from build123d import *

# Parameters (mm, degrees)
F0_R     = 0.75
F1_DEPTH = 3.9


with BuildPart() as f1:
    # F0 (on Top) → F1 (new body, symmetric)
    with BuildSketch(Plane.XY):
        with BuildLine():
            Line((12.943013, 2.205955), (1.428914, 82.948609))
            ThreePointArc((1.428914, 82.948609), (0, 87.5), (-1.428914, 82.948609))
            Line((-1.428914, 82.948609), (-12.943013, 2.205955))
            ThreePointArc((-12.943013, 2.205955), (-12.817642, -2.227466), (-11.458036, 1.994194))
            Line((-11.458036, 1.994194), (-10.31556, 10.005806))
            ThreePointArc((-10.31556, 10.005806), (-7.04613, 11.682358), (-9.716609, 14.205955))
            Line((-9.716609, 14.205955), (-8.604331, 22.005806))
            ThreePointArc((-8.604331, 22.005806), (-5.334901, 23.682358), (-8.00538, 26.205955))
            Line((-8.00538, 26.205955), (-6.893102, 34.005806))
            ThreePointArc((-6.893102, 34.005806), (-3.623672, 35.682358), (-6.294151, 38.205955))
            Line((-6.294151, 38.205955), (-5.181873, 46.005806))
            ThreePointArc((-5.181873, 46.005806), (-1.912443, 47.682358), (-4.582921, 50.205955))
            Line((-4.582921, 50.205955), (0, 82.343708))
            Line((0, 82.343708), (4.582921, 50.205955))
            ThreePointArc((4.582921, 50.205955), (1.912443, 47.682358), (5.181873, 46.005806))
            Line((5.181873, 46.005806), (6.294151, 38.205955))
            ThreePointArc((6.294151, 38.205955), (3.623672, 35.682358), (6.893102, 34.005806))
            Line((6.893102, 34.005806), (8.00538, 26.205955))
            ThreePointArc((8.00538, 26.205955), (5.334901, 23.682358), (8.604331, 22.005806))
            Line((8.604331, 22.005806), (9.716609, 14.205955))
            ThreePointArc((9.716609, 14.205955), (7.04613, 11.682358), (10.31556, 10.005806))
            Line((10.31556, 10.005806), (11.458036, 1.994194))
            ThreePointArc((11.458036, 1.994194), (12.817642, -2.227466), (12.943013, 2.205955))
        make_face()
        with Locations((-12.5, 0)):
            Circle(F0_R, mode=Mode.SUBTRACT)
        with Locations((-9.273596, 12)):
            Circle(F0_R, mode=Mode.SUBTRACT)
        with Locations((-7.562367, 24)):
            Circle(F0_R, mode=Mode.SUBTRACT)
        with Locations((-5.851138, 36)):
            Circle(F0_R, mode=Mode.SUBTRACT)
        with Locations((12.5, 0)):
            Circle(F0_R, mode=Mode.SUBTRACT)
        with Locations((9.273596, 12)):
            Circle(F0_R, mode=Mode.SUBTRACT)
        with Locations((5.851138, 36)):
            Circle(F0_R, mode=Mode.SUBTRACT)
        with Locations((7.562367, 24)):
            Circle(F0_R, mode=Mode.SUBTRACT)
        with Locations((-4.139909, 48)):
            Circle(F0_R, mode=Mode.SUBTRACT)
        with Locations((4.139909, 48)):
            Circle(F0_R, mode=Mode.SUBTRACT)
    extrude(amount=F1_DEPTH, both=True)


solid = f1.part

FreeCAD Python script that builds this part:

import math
import FreeCAD as App
import Part
import Sketcher
Q = App.Units.Quantity

doc = App.newDocument("Part")
body = doc.addObject("PartDesign::Body", "Body")

sketch1 = doc.addObject("Sketcher::SketchObject", "Sketch")
body.addObject(sketch1)
sketch1.AttachmentSupport = (doc.XY_Plane, [""])
sketch1.MapMode = "FlatFace"
sketch1.addGeometry(Part.LineSegment(App.Vector(12.9, 2.2, 0), App.Vector(1.4, 82.9, 0)), False)
sketch1.addGeometry(Part.ArcOfCircle(Part.Circle(App.Vector(0, 85, 0), App.Vector(0, 0, 1), 2.5), math.radians(-55), math.radians(235)), False)
sketch1.addGeometry(Part.LineSegment(App.Vector(-1.4, 82.9, 0), App.Vector(-12.9, 2.2, 0)), False)
sketch1.addGeometry(Part.ArcOfCircle(Part.Circle(App.Vector(-12.5, 0, 0), App.Vector(0, 0, 1), 2.2), math.radians(101), math.radians(422)), False)
sketch1.addGeometry(Part.LineSegment(App.Vector(-11.5, 2, 0), App.Vector(-10.3, 10, 0)), False)
sketch1.addGeometry(Part.ArcOfCircle(Part.Circle(App.Vector(-9.3, 12, 0), App.Vector(0, 0, 1), 2.2), math.radians(-118), math.radians(101)), False)
sketch1.addGeometry(Part.LineSegment(App.Vector(-9.7, 14.2, 0), App.Vector(-8.6, 22, 0)), False)
sketch1.addGeometry(Part.ArcOfCircle(Part.Circle(App.Vector(-7.6, 24, 0), App.Vector(0, 0, 1), 2.2), math.radians(-118), math.radians(101)), False)
sketch1.addGeometry(Part.LineSegment(App.Vector(-8, 26.2, 0), App.Vector(-6.9, 34, 0)), False)
sketch1.addGeometry(Part.ArcOfCircle(Part.Circle(App.Vector(-5.9, 36, 0), App.Vector(0, 0, 1), 2.2), math.radians(-118), math.radians(101)), False)
sketch1.addGeometry(Part.LineSegment(App.Vector(-6.3, 38.2, 0), App.Vector(-5.2, 46, 0)), False)
sketch1.addGeometry(Part.ArcOfCircle(Part.Circle(App.Vector(-4.1, 48, 0), App.Vector(0, 0, 1), 2.2), math.radians(-118), math.radians(101)), False)
sketch1.addGeometry(Part.LineSegment(App.Vector(-4.6, 50.2, 0), App.Vector(0, 82.3, 0)), False)
sketch1.addGeometry(Part.LineSegment(App.Vector(0, 82.3, 0), App.Vector(4.6, 50.2, 0)), False)
sketch1.addGeometry(Part.ArcOfCircle(Part.Circle(App.Vector(4.1, 48, 0), App.Vector(0, 0, 1), 2.2), math.radians(79), math.radians(298)), False)
sketch1.addGeometry(Part.LineSegment(App.Vector(5.2, 46, 0), App.Vector(6.3, 38.2, 0)), False)
sketch1.addGeometry(Part.ArcOfCircle(Part.Circle(App.Vector(5.9, 36, 0), App.Vector(0, 0, 1), 2.2), math.radians(79), math.radians(298)), False)
sketch1.addGeometry(Part.LineSegment(App.Vector(6.9, 34, 0), App.Vector(8, 26.2, 0)), False)
sketch1.addGeometry(Part.ArcOfCircle(Part.Circle(App.Vector(7.6, 24, 0), App.Vector(0, 0, 1), 2.2), math.radians(79), math.radians(298)), False)
sketch1.addGeometry(Part.LineSegment(App.Vector(8.6, 22, 0), App.Vector(9.7, 14.2, 0)), False)
sketch1.addGeometry(Part.ArcOfCircle(Part.Circle(App.Vector(9.3, 12, 0), App.Vector(0, 0, 1), 2.2), math.radians(79), math.radians(298)), False)
sketch1.addGeometry(Part.LineSegment(App.Vector(10.3, 10, 0), App.Vector(11.5, 2, 0)), False)
sketch1.addGeometry(Part.ArcOfCircle(Part.Circle(App.Vector(12.5, 0, 0), App.Vector(0, 0, 1), 2.2), math.radians(118), math.radians(439)), False)
sketch1.addGeometry(Part.Circle(App.Vector(-12.5, 0, 0), App.Vector(0, 0, 1), 0.8), False)
sketch1.addGeometry(Part.Circle(App.Vector(-9.3, 12, 0), App.Vector(0, 0, 1), 0.8), False)
sketch1.addGeometry(Part.Circle(App.Vector(12.5, 0, 0), App.Vector(0, 0, 1), 0.8), False)
sketch1.addGeometry(Part.Circle(App.Vector(9.3, 12, 0), App.Vector(0, 0, 1), 0.8), False)
sketch1.addGeometry(Part.Circle(App.Vector(-7.6, 24, 0), App.Vector(0, 0, 1), 0.8), False)
sketch1.addGeometry(Part.Circle(App.Vector(-5.9, 36, 0), App.Vector(0, 0, 1), 0.8), False)
sketch1.addGeometry(Part.Circle(App.Vector(-4.1, 48, 0), App.Vector(0, 0, 1), 0.8), False)
sketch1.addGeometry(Part.Circle(App.Vector(5.9, 36, 0), App.Vector(0, 0, 1), 0.8), False)
sketch1.addGeometry(Part.Circle(App.Vector(7.6, 24, 0), App.Vector(0, 0, 1), 0.8), False)
sketch1.addGeometry(Part.Circle(App.Vector(4.1, 48, 0), App.Vector(0, 0, 1), 0.8), False)
sketch1.addConstraint(Sketcher.Constraint("Coincident", 0, 2, 1, 1))
sketch1.addConstraint(Sketcher.Constraint("Coincident", 1, 2, 2, 1))
sketch1.addConstraint(Sketcher.Constraint("Coincident", 2, 2, 3, 1))
sketch1.addConstraint(Sketcher.Constraint("Coincident", 3, 2, 4, 1))
sketch1.addConstraint(Sketcher.Constraint("Coincident", 4, 2, 5, 1))
sketch1.addConstraint(Sketcher.Constraint("Coincident", 5, 2, 6, 1))
sketch1.addConstraint(Sketcher.Constraint("Coincident", 6, 2, 7, 1))
sketch1.addConstraint(Sketcher.Constraint("Coincident", 7, 2, 8, 1))
sketch1.addConstraint(Sketcher.Constraint("Coincident", 8, 2, 9, 1))
sketch1.addConstraint(Sketcher.Constraint("Coincident", 9, 2, 10, 1))
sketch1.addConstraint(Sketcher.Constraint("Coincident", 10, 2, 11, 1))
sketch1.addConstraint(Sketcher.Constraint("Coincident", 11, 2, 12, 1))
sketch1.addConstraint(Sketcher.Constraint("Coincident", 12, 2, 13, 1))
sketch1.addConstraint(Sketcher.Constraint("Coincident", 13, 2, 14, 1))
sketch1.addConstraint(Sketcher.Constraint("Coincident", 14, 2, 15, 1))
sketch1.addConstraint(Sketcher.Constraint("Coincident", 15, 2, 16, 1))
sketch1.addConstraint(Sketcher.Constraint("Coincident", 16, 2, 17, 1))
sketch1.addConstraint(Sketcher.Constraint("Coincident", 17, 2, 18, 1))
sketch1.addConstraint(Sketcher.Constraint("Coincident", 18, 2, 19, 1))
sketch1.addConstraint(Sketcher.Constraint("Coincident", 19, 2, 20, 1))
sketch1.addConstraint(Sketcher.Constraint("Coincident", 20, 2, 21, 1))
sketch1.addConstraint(Sketcher.Constraint("Coincident", 21, 2, 22, 1))
sketch1.addConstraint(Sketcher.Constraint("Coincident", 22, 2, 0, 1))
sketch1.addConstraint(Sketcher.Constraint("Coincident", 23, 3, 3, 3))
sketch1.addConstraint(Sketcher.Constraint("Coincident", 24, 3, 5, 3))
sketch1.addConstraint(Sketcher.Constraint("Coincident", 25, 3, 22, 3))
sketch1.addConstraint(Sketcher.Constraint("Coincident", 26, 3, 20, 3))
sketch1.addConstraint(Sketcher.Constraint("Coincident", 27, 3, 7, 3))
sketch1.addConstraint(Sketcher.Constraint("Coincident", 28, 3, 9, 3))
sketch1.addConstraint(Sketcher.Constraint("Coincident", 29, 3, 11, 3))
sketch1.addConstraint(Sketcher.Constraint("Coincident", 30, 3, 16, 3))
sketch1.addConstraint(Sketcher.Constraint("Coincident", 31, 3, 18, 3))
sketch1.addConstraint(Sketcher.Constraint("Coincident", 32, 3, 14, 3))
sketch1.addConstraint(Sketcher.Constraint("Equal", 3, 5))
sketch1.addConstraint(Sketcher.Constraint("Equal", 5, 7))
sketch1.addConstraint(Sketcher.Constraint("Equal", 7, 9))
sketch1.addConstraint(Sketcher.Constraint("Equal", 9, 11))
sketch1.addConstraint(Sketcher.Constraint("Equal", 11, 14))
sketch1.addConstraint(Sketcher.Constraint("Equal", 14, 16))
sketch1.addConstraint(Sketcher.Constraint("Equal", 16, 18))
sketch1.addConstraint(Sketcher.Constraint("Equal", 18, 20))
sketch1.addConstraint(Sketcher.Constraint("Equal", 20, 22))
sketch1.addConstraint(Sketcher.Constraint("Equal", 23, 24))
sketch1.addConstraint(Sketcher.Constraint("Equal", 24, 25))
sketch1.addConstraint(Sketcher.Constraint("Equal", 25, 26))
sketch1.addConstraint(Sketcher.Constraint("Equal", 26, 27))
sketch1.addConstraint(Sketcher.Constraint("Equal", 27, 28))
sketch1.addConstraint(Sketcher.Constraint("Equal", 28, 29))
sketch1.addConstraint(Sketcher.Constraint("Equal", 29, 30))
sketch1.addConstraint(Sketcher.Constraint("Equal", 30, 31))
sketch1.addConstraint(Sketcher.Constraint("Equal", 31, 32))
sketch1.addConstraint(Sketcher.Constraint("Symmetric", 3, 3, 22, 3, -1, 1))
sketch1.addConstraint(Sketcher.Constraint("Symmetric", 11, 3, 14, 3, -2))
sketch1.addConstraint(Sketcher.Constraint("Symmetric", 9, 3, 16, 3, -2))
sketch1.addConstraint(Sketcher.Constraint("Symmetric", 7, 3, 18, 3, -2))
sketch1.addConstraint(Sketcher.Constraint("Symmetric", 5, 3, 20, 3, -2))
sketch1.addConstraint(Sketcher.Constraint("Symmetric", 0, 2, 1, 2, -2))
sketch1.addConstraint(Sketcher.Constraint("Symmetric", 3, 2, 21, 2, -2))
sketch1.addConstraint(Sketcher.Constraint("PointOnObject", 12, 2, -2))
sketch1.addConstraint(Sketcher.Constraint("Parallel", 2, 4))
sketch1.addConstraint(Sketcher.Constraint("Parallel", 4, 6))
sketch1.addConstraint(Sketcher.Constraint("Parallel", 6, 8))
sketch1.addConstraint(Sketcher.Constraint("Parallel", 8, 10))
sketch1.addConstraint(Sketcher.Constraint("Parallel", 10, 12))
sketch1.addConstraint(Sketcher.Constraint("Parallel", 0, 13))
sketch1.addConstraint(Sketcher.Constraint("Parallel", 13, 15))
sketch1.addConstraint(Sketcher.Constraint("Parallel", 15, 17))
sketch1.addConstraint(Sketcher.Constraint("Parallel", 17, 19))
sketch1.addConstraint(Sketcher.Constraint("Parallel", 19, 21))
sketch1.addConstraint(Sketcher.Constraint("Horizontal", 11, 2, 13, 2))
sketch1.addConstraint(Sketcher.Constraint("Horizontal", 10, 2, 14, 2))
sketch1.addConstraint(Sketcher.Constraint("Horizontal", 8, 2, 16, 2))
sketch1.addConstraint(Sketcher.Constraint("Horizontal", 6, 2, 18, 2))
sketch1.addConstraint(Sketcher.Constraint("Equal", 6, 8))
sketch1.addConstraint(Sketcher.Constraint("Equal", 8, 10))
sketch1.addConstraint(Sketcher.Constraint("Diameter", 23, Q("1.5 mm")))
sketch1.addConstraint(Sketcher.Constraint("Radius", 1, Q("2.5 mm")))
sketch1.addConstraint(Sketcher.Constraint("Radius", 3, Q("2.25 mm")))
sketch1.addConstraint(Sketcher.Constraint("DistanceY", -1, 1, 1, 3, Q("85 mm")))
sketch1.addConstraint(Sketcher.Constraint("DistanceY", -1, 1, 5, 3, Q("12 mm")))
sketch1.addConstraint(Sketcher.Constraint("DistanceY", -1, 1, 7, 3, Q("24 mm")))
sketch1.addConstraint(Sketcher.Constraint("DistanceY", -1, 1, 9, 3, Q("36 mm")))
sketch1.addConstraint(Sketcher.Constraint("DistanceY", -1, 1, 11, 3, Q("48 mm")))
sketch1.addConstraint(Sketcher.Constraint("DistanceX", 3, 3, 22, 3, Q("25 mm")))
sketch1.addConstraint(Sketcher.Constraint("DistanceX", -1, 1, 16, 2, Q("6.893102 mm")))
sketch1.addConstraint(Sketcher.Constraint("DistanceY", 12, 2, 0, 2, Q("0.604901 mm")))
sketch1.addConstraint(Sketcher.Constraint("Distance", 0, Q("81.559491 mm")))
sketch1.addConstraint(Sketcher.Constraint("Distance", 6, Q("7.878759 mm")))
sketch1.addConstraint(Sketcher.Constraint("DistanceX", 11, 3, -1, 1, Q("4.139908 mm")))
sketch1.addConstraint(Sketcher.Constraint("DistanceY", -1, 1, 0, 2, Q("82.948609 mm")))
sketch1.addConstraint(Sketcher.Constraint("DistanceX", 4, 2, -1, 1, Q("10.31556 mm")))
sketch1.addConstraint(Sketcher.Constraint("DistanceX", 5, 2, -1, 1, Q("9.716609 mm")))
sketch1.addConstraint(Sketcher.Constraint("DistanceX", 9, 2, -1, 1, Q("6.294151 mm")))
pad1 = doc.addObject("PartDesign::Pad", "Pad")
body.addObject(pad1)
pad1.Profile = sketch1
pad1.Length = 7.8
pad1.Midplane = True

doc.recompute()
